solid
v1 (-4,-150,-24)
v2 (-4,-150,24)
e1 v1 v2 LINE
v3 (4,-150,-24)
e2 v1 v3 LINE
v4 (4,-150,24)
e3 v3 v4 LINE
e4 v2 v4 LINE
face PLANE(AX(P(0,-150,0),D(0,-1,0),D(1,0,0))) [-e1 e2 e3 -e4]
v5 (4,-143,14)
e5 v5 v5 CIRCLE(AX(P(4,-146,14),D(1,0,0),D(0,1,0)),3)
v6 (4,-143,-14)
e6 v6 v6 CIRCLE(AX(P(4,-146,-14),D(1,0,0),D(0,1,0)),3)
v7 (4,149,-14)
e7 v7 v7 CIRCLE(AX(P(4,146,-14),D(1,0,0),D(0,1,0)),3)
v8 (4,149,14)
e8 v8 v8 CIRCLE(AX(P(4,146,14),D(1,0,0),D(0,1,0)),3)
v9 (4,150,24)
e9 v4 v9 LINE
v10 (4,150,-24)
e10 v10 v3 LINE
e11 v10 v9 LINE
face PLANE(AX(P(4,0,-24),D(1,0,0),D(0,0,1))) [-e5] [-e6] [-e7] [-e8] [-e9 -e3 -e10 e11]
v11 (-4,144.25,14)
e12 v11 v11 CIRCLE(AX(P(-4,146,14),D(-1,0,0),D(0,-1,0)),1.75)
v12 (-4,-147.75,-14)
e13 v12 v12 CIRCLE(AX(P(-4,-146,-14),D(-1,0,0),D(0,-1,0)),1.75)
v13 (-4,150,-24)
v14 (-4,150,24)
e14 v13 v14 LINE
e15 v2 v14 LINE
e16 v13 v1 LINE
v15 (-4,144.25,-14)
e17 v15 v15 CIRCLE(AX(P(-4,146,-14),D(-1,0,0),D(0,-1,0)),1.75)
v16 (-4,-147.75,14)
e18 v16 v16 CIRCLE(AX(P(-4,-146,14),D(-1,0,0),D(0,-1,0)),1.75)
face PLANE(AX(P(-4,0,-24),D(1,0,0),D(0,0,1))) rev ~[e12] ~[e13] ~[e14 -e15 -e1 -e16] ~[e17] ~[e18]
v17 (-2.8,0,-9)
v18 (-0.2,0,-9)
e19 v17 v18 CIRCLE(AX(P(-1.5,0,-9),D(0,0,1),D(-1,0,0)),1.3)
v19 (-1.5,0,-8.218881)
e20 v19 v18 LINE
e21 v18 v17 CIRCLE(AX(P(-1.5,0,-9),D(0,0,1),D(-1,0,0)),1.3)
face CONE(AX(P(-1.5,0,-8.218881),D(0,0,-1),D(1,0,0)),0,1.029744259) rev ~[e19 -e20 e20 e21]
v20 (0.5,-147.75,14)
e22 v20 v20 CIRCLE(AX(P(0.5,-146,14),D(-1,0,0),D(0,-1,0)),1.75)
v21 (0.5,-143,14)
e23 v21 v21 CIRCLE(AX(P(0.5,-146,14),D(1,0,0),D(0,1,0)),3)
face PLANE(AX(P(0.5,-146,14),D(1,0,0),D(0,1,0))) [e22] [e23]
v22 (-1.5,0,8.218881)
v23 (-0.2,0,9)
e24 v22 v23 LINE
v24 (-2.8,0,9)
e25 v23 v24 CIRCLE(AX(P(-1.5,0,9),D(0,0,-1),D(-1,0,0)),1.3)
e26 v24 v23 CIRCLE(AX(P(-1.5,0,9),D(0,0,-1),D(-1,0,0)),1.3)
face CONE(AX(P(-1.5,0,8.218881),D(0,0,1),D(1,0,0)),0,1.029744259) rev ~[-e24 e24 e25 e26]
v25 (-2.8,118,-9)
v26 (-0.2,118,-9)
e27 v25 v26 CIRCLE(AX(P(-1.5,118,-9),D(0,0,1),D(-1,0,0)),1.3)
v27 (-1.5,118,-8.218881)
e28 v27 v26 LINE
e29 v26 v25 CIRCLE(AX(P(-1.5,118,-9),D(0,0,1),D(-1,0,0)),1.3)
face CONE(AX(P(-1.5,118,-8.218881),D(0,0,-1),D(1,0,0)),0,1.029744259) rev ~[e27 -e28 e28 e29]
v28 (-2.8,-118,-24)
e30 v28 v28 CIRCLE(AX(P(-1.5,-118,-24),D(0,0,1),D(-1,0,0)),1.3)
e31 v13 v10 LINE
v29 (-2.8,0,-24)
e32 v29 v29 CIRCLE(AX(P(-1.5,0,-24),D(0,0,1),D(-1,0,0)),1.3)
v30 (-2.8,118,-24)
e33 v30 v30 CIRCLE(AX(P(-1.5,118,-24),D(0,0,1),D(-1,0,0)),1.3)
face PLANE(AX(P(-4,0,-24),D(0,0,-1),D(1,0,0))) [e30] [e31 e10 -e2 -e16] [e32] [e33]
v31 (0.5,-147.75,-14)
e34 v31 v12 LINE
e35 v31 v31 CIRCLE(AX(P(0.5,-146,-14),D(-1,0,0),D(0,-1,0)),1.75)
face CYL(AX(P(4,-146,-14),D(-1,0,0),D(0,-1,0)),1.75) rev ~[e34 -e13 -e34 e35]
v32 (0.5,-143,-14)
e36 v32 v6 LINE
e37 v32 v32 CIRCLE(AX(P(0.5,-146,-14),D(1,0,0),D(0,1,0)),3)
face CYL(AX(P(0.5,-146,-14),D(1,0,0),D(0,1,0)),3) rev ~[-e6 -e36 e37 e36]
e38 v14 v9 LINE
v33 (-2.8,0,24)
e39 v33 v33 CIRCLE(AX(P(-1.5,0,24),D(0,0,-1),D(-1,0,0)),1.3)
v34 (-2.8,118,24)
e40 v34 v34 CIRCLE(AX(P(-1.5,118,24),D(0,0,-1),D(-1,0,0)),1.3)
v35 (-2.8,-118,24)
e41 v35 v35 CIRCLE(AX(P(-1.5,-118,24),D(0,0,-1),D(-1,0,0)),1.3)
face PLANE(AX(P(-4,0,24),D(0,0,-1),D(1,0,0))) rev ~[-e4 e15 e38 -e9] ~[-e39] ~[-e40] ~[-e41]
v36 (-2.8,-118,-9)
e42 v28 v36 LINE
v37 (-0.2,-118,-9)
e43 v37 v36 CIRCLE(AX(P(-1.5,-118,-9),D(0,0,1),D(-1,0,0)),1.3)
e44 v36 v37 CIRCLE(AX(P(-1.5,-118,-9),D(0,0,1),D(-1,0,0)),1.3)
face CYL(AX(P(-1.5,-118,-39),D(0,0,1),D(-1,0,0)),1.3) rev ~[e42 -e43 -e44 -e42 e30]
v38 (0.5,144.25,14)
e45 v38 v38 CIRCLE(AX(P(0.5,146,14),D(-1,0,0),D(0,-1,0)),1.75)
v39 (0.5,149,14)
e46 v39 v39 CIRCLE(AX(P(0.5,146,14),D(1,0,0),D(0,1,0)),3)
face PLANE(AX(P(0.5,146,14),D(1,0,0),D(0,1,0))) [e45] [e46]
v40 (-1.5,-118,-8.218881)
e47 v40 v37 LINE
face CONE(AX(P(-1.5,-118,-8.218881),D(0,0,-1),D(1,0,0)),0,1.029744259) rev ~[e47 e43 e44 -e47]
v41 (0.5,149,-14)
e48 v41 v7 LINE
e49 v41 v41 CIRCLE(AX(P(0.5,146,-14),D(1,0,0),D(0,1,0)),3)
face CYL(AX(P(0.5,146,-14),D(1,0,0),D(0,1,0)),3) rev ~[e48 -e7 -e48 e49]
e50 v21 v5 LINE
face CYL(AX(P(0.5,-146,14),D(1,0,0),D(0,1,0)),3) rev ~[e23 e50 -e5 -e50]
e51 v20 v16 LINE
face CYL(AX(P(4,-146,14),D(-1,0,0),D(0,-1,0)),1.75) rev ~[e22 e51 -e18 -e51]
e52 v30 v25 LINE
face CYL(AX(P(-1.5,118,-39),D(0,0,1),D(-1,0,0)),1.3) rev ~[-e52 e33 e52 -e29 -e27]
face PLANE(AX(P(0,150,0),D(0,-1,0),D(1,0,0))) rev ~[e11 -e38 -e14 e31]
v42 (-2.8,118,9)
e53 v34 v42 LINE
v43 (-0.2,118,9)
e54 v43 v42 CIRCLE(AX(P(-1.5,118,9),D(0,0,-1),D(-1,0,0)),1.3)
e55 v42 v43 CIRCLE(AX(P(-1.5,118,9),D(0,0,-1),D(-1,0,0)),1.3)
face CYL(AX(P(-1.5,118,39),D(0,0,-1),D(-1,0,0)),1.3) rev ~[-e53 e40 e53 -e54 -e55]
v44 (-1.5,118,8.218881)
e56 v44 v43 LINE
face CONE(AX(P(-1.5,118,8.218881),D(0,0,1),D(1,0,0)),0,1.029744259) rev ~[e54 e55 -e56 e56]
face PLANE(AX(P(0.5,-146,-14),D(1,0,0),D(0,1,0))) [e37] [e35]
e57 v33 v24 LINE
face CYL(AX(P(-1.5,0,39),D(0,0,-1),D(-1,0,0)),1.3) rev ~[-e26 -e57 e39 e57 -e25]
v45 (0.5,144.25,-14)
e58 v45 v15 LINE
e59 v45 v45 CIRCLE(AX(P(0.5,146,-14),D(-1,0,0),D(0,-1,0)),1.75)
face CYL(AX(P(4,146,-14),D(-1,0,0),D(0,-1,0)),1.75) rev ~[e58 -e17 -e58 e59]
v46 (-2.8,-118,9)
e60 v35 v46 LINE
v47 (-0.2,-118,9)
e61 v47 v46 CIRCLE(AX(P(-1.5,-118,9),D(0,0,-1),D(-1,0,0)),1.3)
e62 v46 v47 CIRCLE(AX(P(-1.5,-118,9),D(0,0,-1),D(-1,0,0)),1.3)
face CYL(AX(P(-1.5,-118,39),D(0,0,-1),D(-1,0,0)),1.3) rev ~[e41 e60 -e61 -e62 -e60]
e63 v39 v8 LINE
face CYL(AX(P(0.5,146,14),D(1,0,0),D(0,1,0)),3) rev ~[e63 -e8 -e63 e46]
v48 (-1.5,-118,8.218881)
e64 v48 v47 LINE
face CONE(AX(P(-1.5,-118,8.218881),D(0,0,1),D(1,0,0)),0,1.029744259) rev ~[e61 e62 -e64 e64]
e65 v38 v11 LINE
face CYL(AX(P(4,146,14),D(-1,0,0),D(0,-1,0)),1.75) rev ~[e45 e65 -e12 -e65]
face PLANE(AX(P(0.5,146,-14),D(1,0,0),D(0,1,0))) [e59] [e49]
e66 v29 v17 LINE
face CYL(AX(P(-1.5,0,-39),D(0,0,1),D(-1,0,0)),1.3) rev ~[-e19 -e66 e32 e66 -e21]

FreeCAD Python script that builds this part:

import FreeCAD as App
import Part
import Sketcher
from FreeCAD import Vector

doc = App.newDocument("Part")
body = doc.addObject("PartDesign::Body", "Body")

sketch1 = body.newObject("Sketcher::SketchObject", "Sketch")
sketch1.AttachmentSupport = (doc.getObject("XZ_Plane"), [""])
sketch1.MapMode = "FlatFace"
sketch1.addGeometry(Part.LineSegment(Vector(-4, 24, 0), Vector(-4, -24, 0)), False)
sketch1.addGeometry(Part.LineSegment(Vector(-4, -24, 0), Vector(4, -24, 0)), False)
sketch1.addGeometry(Part.LineSegment(Vector(4, -24, 0), Vector(4, 24, 0)), False)
sketch1.addGeometry(Part.LineSegment(Vector(4, 24, 0), Vector(-4, 24, 0)), False)
sketch1.addConstraint(Sketcher.Constraint("Coincident", 0, 2, 1, 1))
sketch1.addConstraint(Sketcher.Constraint("Coincident", 1, 2, 2, 1))
sketch1.addConstraint(Sketcher.Constraint("Coincident", 2, 2, 3, 1))
sketch1.addConstraint(Sketcher.Constraint("Coincident", 3, 2, 0, 1))
sketch1.addConstraint(Sketcher.Constraint("Vertical", 0))
sketch1.addConstraint(Sketcher.Constraint("Horizontal", 1))
sketch1.addConstraint(Sketcher.Constraint("Vertical", 2))
sketch1.addConstraint(Sketcher.Constraint("Horizontal", 3))
sketch1.addConstraint(Sketcher.Constraint("Symmetric", 0, 2, 2, 2, -1, 1))
sketch1.addConstraint(Sketcher.Constraint("DistanceX", 1, 1, 1, 2, 8.0))
sketch1.addConstraint(Sketcher.Constraint("DistanceY", 0, 2, 0, 1, 48.0))
pad1 = body.newObject("PartDesign::Pad", "Pad")
pad1.Profile = sketch1
pad1.Length = 300
pad1.Midplane = True

sketch2 = body.newObject("Sketcher::SketchObject", "Sketch001")
sketch2.AttachmentSupport = (doc.getObject("XY_Plane"), [""])
sketch2.MapMode = "FlatFace"
sketch2.AttachmentOffset = App.Placement(Vector(0, 0, 24), App.Rotation())
sketch2.addGeometry(Part.Circle(Vector(-1.5, -118, 0), Vector(0, 0, 1), 1.3), False)
sketch2.addGeometry(Part.Circle(Vector(-1.5, 0, 0), Vector(0, 0, 1), 1.3), False)
sketch2.addGeometry(Part.Circle(Vector(-1.5, 118, 0), Vector(0, 0, 1), 1.3), False)
sketch2.addConstraint(Sketcher.Constraint("Equal", 0, 1))
sketch2.addConstraint(Sketcher.Constraint("Equal", 1, 2))
sketch2.addConstraint(Sketcher.Constraint("Symmetric", 0, 3, 2, 3, -1))
sketch2.addConstraint(Sketcher.Constraint("PointOnObject", 1, 3, -1))
sketch2.addConstraint(Sketcher.Constraint("Vertical", 0, 3, 1, 3))
sketch2.addConstraint(Sketcher.Constraint("Diameter", 0, 2.6))
sketch2.addConstraint(Sketcher.Constraint("DistanceY", 0, 3, -1, 1, 118.0))
sketch2.addConstraint(Sketcher.Constraint("DistanceX", 0, 3, -1, 1, 1.5))
doc.recompute()
hole = body.newObject("PartDesign::Hole", "Hole")
hole.Profile = sketch2
hole.ThreadType = "None"
hole.Diameter = 2.6
hole.DepthType = "Dimension"
hole.Depth = 15
hole.DrillPoint = "Angled"
hole.DrillPointAngle = 118

sketch3 = body.newObject("Sketcher::SketchObject", "Sketch002")
sketch3.AttachmentSupport = (doc.getObject("XY_Plane"), [""])
sketch3.MapMode = "FlatFace"
sketch3.AttachmentOffset = App.Placement(Vector(0, 0, -24), App.Rotation())
sketch3.addGeometry(Part.Circle(Vector(-1.5, -118, 0), Vector(0, 0, 1), 1.3), False)
sketch3.addGeometry(Part.Circle(Vector(-1.5, 0, 0), Vector(0, 0, 1), 1.3), False)
sketch3.addGeometry(Part.Circle(Vector(-1.5, 118, 0), Vector(0, 0, 1), 1.3), False)
sketch3.addConstraint(Sketcher.Constraint("Equal", 0, 1))
sketch3.addConstraint(Sketcher.Constraint("Equal", 1, 2))
sketch3.addConstraint(Sketcher.Constraint("Symmetric", 0, 3, 2, 3, -1))
sketch3.addConstraint(Sketcher.Constraint("PointOnObject", 1, 3, -1))
sketch3.addConstraint(Sketcher.Constraint("Vertical", 0, 3, 1, 3))
sketch3.addConstraint(Sketcher.Constraint("Diameter", 0, 2.6))
sketch3.addConstraint(Sketcher.Constraint("DistanceY", 0, 3, -1, 1, 118.0))
sketch3.addConstraint(Sketcher.Constraint("DistanceX", 0, 3, -1, 1, 1.5))
doc.recompute()
hole2 = body.newObject("PartDesign::Hole", "Hole001")
hole2.Profile = sketch3
hole2.ThreadType = "None"
hole2.Diameter = 2.6
hole2.DepthType = "Dimension"
hole2.Depth = 15
hole2.DrillPoint = "Angled"
hole2.DrillPointAngle = 118
hole2.Reversed = True

sketch4 = body.newObject("Sketcher::SketchObject", "Sketch003")
sketch4.AttachmentSupport = (doc.getObject("YZ_Plane"), [""])
sketch4.MapMode = "FlatFace"
sketch4.AttachmentOffset = App.Placement(Vector(0, 0, 4), App.Rotation())
sketch4.addGeometry(Part.Circle(Vector(-146, 14, 0), Vector(0, 0, 1), 1.75), False)
sketch4.addGeometry(Part.Circle(Vector(-146, -14, 0), Vector(0, 0, 1), 1.75), False)
sketch4.addGeometry(Part.Circle(Vector(146, 14, 0), Vector(0, 0, 1), 1.75), False)
sketch4.addGeometry(Part.Circle(Vector(146, -14, 0), Vector(0, 0, 1), 1.75), False)
sketch4.addConstraint(Sketcher.Constraint("Equal", 0, 1))
sketch4.addConstraint(Sketcher.Constraint("Equal", 1, 2))
sketch4.addConstraint(Sketcher.Constraint("Equal", 2, 3))
sketch4.addConstraint(Sketcher.Constraint("Symmetric", 1, 3, 2, 3, -1, 1))
sketch4.addConstraint(Sketcher.Constraint("Symmetric", 0, 3, 3, 3, -1, 1))
sketch4.addConstraint(Sketcher.Constraint("Symmetric", 0, 3, 2, 3, -2))
sketch4.addConstraint(Sketcher.Constraint("Diameter", 0, 3.5))
sketch4.addConstraint(Sketcher.Constraint("DistanceX", 0, 3, -1, 1, 146.0))
sketch4.addConstraint(Sketcher.Constraint("DistanceY", -1, 1, 0, 3, 14.0))
doc.recompute()
hole3 = body.newObject("PartDesign::Hole", "Hole002")
hole3.Profile = sketch4
hole3.ThreadType = "None"
hole3.Diameter = 3.5
hole3.DepthType = "ThroughAll"
hole3.HoleCutType = "Counterbore"
hole3.HoleCutDiameter = 6
hole3.HoleCutDepth = 3.5

doc.recompute()
